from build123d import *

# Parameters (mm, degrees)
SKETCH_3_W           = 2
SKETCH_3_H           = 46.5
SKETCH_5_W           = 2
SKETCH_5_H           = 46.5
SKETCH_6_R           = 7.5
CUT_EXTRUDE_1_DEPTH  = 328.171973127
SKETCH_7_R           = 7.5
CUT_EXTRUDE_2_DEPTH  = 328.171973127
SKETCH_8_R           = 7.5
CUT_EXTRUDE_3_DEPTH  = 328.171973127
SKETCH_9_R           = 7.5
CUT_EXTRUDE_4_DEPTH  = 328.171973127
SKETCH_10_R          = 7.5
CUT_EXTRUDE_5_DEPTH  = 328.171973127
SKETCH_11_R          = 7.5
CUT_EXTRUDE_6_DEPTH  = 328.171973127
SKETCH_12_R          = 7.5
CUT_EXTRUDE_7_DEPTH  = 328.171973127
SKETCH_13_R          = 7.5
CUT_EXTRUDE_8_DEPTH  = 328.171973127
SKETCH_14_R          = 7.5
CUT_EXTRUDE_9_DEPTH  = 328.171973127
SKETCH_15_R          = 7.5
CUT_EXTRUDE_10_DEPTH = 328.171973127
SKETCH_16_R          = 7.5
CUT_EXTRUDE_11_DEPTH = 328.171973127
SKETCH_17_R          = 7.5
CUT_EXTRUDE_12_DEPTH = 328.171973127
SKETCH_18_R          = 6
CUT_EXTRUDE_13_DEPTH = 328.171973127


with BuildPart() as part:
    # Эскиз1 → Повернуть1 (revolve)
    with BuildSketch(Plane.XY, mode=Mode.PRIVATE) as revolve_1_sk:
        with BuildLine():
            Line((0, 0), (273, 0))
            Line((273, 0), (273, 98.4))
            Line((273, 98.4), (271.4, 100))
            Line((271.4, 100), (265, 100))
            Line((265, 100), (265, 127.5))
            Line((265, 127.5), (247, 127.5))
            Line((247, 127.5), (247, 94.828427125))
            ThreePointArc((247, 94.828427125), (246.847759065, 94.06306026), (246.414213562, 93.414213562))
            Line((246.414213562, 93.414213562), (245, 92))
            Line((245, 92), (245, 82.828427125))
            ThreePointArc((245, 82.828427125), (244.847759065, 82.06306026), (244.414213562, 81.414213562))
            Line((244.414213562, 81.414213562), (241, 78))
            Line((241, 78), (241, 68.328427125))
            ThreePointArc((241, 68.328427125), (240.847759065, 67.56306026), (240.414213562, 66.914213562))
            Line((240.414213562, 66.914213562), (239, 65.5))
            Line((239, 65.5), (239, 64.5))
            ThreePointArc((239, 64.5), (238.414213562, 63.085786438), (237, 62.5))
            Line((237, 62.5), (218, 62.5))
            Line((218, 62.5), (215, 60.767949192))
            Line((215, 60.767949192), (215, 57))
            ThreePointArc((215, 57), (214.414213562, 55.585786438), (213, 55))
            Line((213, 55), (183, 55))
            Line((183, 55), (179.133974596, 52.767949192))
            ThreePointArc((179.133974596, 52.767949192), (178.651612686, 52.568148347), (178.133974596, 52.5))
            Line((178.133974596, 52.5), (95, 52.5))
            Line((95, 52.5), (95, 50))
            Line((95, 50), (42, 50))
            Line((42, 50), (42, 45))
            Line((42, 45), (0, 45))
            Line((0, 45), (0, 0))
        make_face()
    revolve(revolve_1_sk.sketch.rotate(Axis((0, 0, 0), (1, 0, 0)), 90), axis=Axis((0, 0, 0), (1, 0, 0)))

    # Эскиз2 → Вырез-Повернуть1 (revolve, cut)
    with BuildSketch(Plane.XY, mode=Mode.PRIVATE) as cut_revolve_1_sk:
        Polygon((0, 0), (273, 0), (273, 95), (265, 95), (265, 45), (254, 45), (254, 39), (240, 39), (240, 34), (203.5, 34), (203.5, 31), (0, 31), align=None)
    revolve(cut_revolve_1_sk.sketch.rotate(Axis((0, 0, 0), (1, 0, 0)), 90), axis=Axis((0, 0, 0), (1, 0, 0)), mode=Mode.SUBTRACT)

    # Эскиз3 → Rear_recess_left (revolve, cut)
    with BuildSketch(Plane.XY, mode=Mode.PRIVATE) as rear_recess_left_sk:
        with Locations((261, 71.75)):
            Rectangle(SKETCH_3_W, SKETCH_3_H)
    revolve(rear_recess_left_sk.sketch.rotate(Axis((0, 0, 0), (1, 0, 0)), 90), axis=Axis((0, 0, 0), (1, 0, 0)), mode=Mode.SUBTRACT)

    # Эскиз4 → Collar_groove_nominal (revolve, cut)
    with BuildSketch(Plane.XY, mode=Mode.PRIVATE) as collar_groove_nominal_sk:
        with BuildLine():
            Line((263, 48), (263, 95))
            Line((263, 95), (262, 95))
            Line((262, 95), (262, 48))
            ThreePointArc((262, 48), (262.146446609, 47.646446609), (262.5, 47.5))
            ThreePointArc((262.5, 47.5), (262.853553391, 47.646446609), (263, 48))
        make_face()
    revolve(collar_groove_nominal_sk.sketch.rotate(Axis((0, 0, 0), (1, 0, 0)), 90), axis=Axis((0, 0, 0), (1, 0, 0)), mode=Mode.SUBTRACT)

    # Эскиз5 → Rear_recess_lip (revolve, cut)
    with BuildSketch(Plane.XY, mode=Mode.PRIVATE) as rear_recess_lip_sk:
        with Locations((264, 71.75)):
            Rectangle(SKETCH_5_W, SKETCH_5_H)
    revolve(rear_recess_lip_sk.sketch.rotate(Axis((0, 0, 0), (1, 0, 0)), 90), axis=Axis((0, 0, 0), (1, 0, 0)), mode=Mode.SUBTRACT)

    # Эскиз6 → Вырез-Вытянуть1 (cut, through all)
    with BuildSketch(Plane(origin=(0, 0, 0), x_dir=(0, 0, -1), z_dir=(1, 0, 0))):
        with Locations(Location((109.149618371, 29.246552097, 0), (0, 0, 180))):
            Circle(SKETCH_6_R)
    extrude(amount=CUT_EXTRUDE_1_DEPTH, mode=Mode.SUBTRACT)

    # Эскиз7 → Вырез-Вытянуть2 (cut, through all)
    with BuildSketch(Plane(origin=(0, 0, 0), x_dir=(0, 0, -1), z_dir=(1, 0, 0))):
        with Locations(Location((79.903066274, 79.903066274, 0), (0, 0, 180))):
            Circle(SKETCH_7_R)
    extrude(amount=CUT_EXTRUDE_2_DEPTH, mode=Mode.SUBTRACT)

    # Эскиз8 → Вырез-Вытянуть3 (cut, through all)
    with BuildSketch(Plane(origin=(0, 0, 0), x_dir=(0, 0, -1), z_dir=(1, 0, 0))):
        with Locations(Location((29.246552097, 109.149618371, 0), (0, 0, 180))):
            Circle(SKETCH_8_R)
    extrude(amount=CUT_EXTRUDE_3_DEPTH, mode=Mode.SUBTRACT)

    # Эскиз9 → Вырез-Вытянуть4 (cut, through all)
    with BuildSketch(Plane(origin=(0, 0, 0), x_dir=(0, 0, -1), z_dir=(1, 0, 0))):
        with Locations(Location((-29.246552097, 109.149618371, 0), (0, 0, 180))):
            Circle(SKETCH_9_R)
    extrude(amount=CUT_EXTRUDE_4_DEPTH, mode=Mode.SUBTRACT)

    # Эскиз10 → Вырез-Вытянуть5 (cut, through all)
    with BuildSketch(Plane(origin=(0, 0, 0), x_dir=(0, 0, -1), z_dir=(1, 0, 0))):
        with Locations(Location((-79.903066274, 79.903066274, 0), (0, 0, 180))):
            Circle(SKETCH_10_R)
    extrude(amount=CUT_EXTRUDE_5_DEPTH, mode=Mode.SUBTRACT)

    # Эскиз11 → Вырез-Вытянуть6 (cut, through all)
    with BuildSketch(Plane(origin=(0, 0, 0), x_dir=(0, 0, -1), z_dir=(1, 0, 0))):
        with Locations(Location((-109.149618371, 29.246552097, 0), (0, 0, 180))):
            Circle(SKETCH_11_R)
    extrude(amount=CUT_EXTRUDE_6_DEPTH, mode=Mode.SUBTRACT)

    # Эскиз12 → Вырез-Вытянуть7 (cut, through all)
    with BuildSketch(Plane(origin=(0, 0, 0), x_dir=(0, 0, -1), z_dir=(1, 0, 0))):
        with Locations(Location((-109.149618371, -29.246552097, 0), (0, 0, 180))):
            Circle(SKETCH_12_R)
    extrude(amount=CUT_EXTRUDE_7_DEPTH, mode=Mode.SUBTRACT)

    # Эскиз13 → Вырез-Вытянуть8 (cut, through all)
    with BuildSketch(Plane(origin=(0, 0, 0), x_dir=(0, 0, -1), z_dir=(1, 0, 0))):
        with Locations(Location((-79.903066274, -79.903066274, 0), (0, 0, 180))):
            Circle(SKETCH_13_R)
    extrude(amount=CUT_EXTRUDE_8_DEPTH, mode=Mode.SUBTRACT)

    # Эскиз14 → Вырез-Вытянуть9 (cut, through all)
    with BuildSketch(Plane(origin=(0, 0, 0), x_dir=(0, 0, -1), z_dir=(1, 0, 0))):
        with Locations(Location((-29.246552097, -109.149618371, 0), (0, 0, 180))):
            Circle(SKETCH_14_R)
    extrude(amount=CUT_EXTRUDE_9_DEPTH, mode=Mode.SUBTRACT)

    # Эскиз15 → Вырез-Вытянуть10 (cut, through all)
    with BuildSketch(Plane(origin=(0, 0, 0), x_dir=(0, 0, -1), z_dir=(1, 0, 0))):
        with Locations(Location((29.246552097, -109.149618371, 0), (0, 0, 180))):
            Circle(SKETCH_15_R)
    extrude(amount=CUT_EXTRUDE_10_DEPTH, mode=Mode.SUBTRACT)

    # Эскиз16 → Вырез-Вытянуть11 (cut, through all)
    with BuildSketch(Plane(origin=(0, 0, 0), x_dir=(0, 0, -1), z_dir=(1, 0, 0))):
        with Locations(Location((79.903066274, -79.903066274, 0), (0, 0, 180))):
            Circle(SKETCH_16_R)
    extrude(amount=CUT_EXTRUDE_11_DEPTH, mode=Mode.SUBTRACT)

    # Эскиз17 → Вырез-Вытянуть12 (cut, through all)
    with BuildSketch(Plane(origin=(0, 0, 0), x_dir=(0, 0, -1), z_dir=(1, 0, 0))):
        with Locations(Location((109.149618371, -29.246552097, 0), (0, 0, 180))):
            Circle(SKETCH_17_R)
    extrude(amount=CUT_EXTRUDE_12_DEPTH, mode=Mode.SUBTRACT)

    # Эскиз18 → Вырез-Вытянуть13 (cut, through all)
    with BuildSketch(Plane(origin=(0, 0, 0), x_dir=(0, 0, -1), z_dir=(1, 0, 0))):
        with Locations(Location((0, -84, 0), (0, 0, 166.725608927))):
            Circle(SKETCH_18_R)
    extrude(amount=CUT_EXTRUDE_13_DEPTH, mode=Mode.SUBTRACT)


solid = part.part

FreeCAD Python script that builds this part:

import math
import FreeCAD as App
import Part
import Sketcher
from FreeCAD import Vector
Q = App.Units.Quantity

doc = App.newDocument("Part")
body = doc.addObject("PartDesign::Body", "Body")

# Sketch on XY plane
sketch1 = body.newObject("Sketcher::SketchObject", "Sketch")
sketch1.AttachmentSupport = (doc.getObject("XY_Plane"), [""])
sketch1.MapMode = "FlatFace"
sketch1.addGeometry([
    Part.LineSegment(Vector(0, 0, 0), Vector(273, 0, 0)),  # 0
    Part.LineSegment(Vector(273, 0, 0), Vector(273, 98.4, 0)),  # 1
    Part.LineSegment(Vector(273, 98.4, 0), Vector(271.4, 100, 0)),  # 2
    Part.LineSegment(Vector(271.4, 100, 0), Vector(265, 100, 0)),  # 3
    Part.LineSegment(Vector(265, 100, 0), Vector(265, 127.5, 0)),  # 4
    Part.LineSegment(Vector(265, 127.5, 0), Vector(247, 127.5, 0)),  # 5
    Part.LineSegment(Vector(247, 127.5, 0), Vector(247, 94.828427, 0)),  # 6
    Part.ArcOfCircle(Part.Circle(Vector(245, 94.828427, 0), Vector(0, 0, 1), 2), math.radians(-45), math.radians(0)),  # 7
    Part.LineSegment(Vector(246.414214, 93.414214, 0), Vector(245, 92, 0)),  # 8
    Part.LineSegment(Vector(245, 92, 0), Vector(245, 82.828427, 0)),  # 9
    Part.ArcOfCircle(Part.Circle(Vector(243, 82.828427, 0), Vector(0, 0, 1), 2), math.radians(-45), math.radians(0)),  # 10
    Part.LineSegment(Vector(244.414214, 81.414214, 0), Vector(241, 78, 0)),  # 11
    Part.LineSegment(Vector(241, 78, 0), Vector(241, 68.328427, 0)),  # 12
    Part.ArcOfCircle(Part.Circle(Vector(239, 68.328427, 0), Vector(0, 0, 1), 2), math.radians(-45), math.radians(0)),  # 13
    Part.LineSegment(Vector(240.414214, 66.914214, 0), Vector(239, 65.5, 0)),  # 14
    Part.LineSegment(Vector(239, 65.5, 0), Vector(239, 64.5, 0)),  # 15
    Part.ArcOfCircle(Part.Circle(Vector(237, 64.5, 0), Vector(0, 0, 1), 2), math.radians(-90), math.radians(0)),  # 16
    Part.LineSegment(Vector(237, 62.5, 0), Vector(218, 62.5, 0)),  # 17
    Part.LineSegment(Vector(218, 62.5, 0), Vector(215, 60.767949, 0)),  # 18
    Part.LineSegment(Vector(215, 60.767949, 0), Vector(215, 57, 0)),  # 19
    Part.ArcOfCircle(Part.Circle(Vector(213, 57, 0), Vector(0, 0, 1), 2), math.radians(-90), math.radians(0)),  # 20
    Part.LineSegment(Vector(213, 55, 0), Vector(183, 55, 0)),  # 21
    Part.LineSegment(Vector(183, 55, 0), Vector(179.133975, 52.767949, 0)),  # 22
    Part.ArcOfCircle(Part.Circle(Vector(178.133975, 54.5, 0), Vector(0, 0, 1), 2), math.radians(-90), math.radians(-60)),  # 23
    Part.LineSegment(Vector(178.133975, 52.5, 0), Vector(95, 52.5, 0)),  # 24
    Part.LineSegment(Vector(95, 52.5, 0), Vector(95, 50, 0)),  # 25
    Part.LineSegment(Vector(95, 50, 0), Vector(42, 50, 0)),  # 26
    Part.LineSegment(Vector(42, 50, 0), Vector(42, 45, 0)),  # 27
    Part.LineSegment(Vector(42, 45, 0), Vector(0, 45, 0)),  # 28
    Part.LineSegment(Vector(0, 45, 0), Vector(0, 0, 0)),  # 29
], False)
sketch1.addConstraint([
    Sketcher.Constraint("Coincident", 0, 2, 1, 1),
    Sketcher.Constraint("Coincident", 1, 2, 2, 1),
    Sketcher.Constraint("Coincident", 2, 2, 3, 1),
    Sketcher.Constraint("Coincident", 3, 2, 4, 1),
    Sketcher.Constraint("Coincident", 4, 2, 5, 1),
    Sketcher.Constraint("Coincident", 5, 2, 6, 1),
    Sketcher.Constraint("Tangent", 6, 2, 7, 2),
    Sketcher.Constraint("Tangent", 7, 1, 8, 1),
    Sketcher.Constraint("Coincident", 8, 2, 9, 1),
    Sketcher.Constraint("Tangent", 9, 2, 10, 2),
    Sketcher.Constraint("Tangent", 10, 1, 11, 1),
    Sketcher.Constraint("Coincident", 11, 2, 12, 1),
    Sketcher.Constraint("Tangent", 12, 2, 13, 2),
    Sketcher.Constraint("Tangent", 13, 1, 14, 1),
    Sketcher.Constraint("Coincident", 14, 2, 15, 1),
    Sketcher.Constraint("Tangent", 15, 2, 16, 2),
    Sketcher.Constraint("Tangent", 16, 1, 17, 1),
    Sketcher.Constraint("Coincident", 17, 2, 18, 1),
    Sketcher.Constraint("Coincident", 18, 2, 19, 1),
    Sketcher.Constraint("Tangent", 19, 2, 20, 2),
    Sketcher.Constraint("Tangent", 20, 1, 21, 1),
    Sketcher.Constraint("Coincident", 21, 2, 22, 1),
    Sketcher.Constraint("Tangent", 22, 2, 23, 2),
    Sketcher.Constraint("Tangent", 23, 1, 24, 1),
    Sketcher.Constraint("Coincident", 24, 2, 25, 1),
    Sketcher.Constraint("Coincident", 25, 2, 26, 1),
    Sketcher.Constraint("Coincident", 26, 2, 27, 1),
    Sketcher.Constraint("Coincident", 27, 2, 28, 1),
    Sketcher.Constraint("Coincident", 28, 2, 29, 1),
    Sketcher.Constraint("Coincident", 29, 2, 0, 1),
    Sketcher.Constraint("Horizontal", 0),
    Sketcher.Constraint("Vertical", 1),
    Sketcher.Constraint("Horizontal", 3),
    Sketcher.Constraint("Vertical", 4),
    Sketcher.Constraint("Horizontal", 5),
    Sketcher.Constraint("Vertical", 6),
    Sketcher.Constraint("Vertical", 9),
    Sketcher.Constraint("Vertical", 12),
    Sketcher.Constraint("Vertical", 15),
    Sketcher.Constraint("Horizontal", 17),
    Sketcher.Constraint("Vertical", 19),
    Sketcher.Constraint("Horizontal", 21),
    Sketcher.Constraint("Horizontal", 24),
    Sketcher.Constraint("Vertical", 25),
    Sketcher.Constraint("Horizontal", 26),
    Sketcher.Constraint("Vertical", 27),
    Sketcher.Constraint("Horizontal", 28),
    Sketcher.Constraint("Vertical", 29),
    Sketcher.Constraint("Coincident", 29, 2, -1, 1),
    Sketcher.Constraint("Equal", 7, 10),
    Sketcher.Constraint("Equal", 10, 13),
    Sketcher.Constraint("Equal", 13, 16),
    Sketcher.Constraint("Equal", 16, 20),
    Sketcher.Constraint("Equal", 20, 23),
    Sketcher.Constraint("Perpendicular", 2, 8),
    Sketcher.Constraint("Parallel", 8, 11),
    Sketcher.Constraint("Parallel", 11, 14),
    Sketcher.Constraint("Parallel", 18, 22),
    Sketcher.Constraint("Vertical", 7, 3, 8, 2),
    Sketcher.Constraint("Vertical", 13, 3, 14, 2),
    Sketcher.Constraint("Radius", 7, Q("2 mm")),
    Sketcher.Constraint("DistanceX", 0, 1, 0, 2, Q("273 mm")),
    Sketcher.Constraint("DistanceX", 5, 2, 5, 1, Q("18 mm")),
    Sketcher.Constraint("DistanceX", 17, 2, 17, 1, Q("19 mm")),
    Sketcher.Constraint("DistanceX", 21, 2, 21, 1, Q("30 mm")),
    Sketcher.Constraint("DistanceX", 26, 2, 26, 1, Q("53 mm")),
    Sketcher.Constraint("DistanceX", 28, 2, 28, 1, Q("42 mm")),
    Sketcher.Constraint("DistanceY", 15, 2, 15, 1, Q("1 mm")),
    Sketcher.Constraint("DistanceY", 27, 2, 27, 1, Q("5 mm")),
    Sketcher.Constraint("DistanceY", 29, 2, 29, 1, Q("45 mm")),
    Sketcher.Constraint("Angle", 2, Q("135 deg")),
    Sketcher.Constraint("Angle", 18, Q("-150 deg")),
    Sketcher.Constraint("DistanceX", 3, 2, 3, 1, Q("6.4 mm")),
    Sketcher.Constraint("DistanceY", 1, 1, 1, 2, Q("98.4 mm")),
    Sketcher.Constraint("DistanceY", 4, 1, 4, 2, Q("27.5 mm")),
    Sketcher.Constraint("DistanceY", 25, 2, 25, 1, Q("2.5 mm")),
    Sketcher.Constraint("DistanceX", -1, 1, 7, 3, Q("245 mm")),
    Sketcher.Constraint("DistanceX", -1, 1, 13, 3, Q("239 mm")),
    Sketcher.Constraint("DistanceX", -1, 1, 20, 3, Q("213 mm")),
    Sketcher.Constraint("DistanceY", -1, 1, 20, 3, Q("57 mm")),
    Sketcher.Constraint("DistanceY", -1, 1, 8, 2, Q("92 mm")),
    Sketcher.Constraint("DistanceY", -1, 1, 11, 2, Q("78 mm")),
    Sketcher.Constraint("DistanceY", 23, 3, 16, 3, Q("10 mm")),
])
revolution = body.newObject("PartDesign::Revolution", "Revolution")
revolution.Profile = sketch1
revolution.ReferenceAxis = (sketch1, ["H_Axis"])
revolution.Angle = 360

# Sketch on XY plane
sketch2 = body.newObject("Sketcher::SketchObject", "Sketch001")
sketch2.AttachmentSupport = (doc.getObject("XY_Plane"), [""])
sketch2.MapMode = "FlatFace"
sketch2.addGeometry([
    Part.LineSegment(Vector(0, 0, 0), Vector(273, 0, 0)),  # 0
    Part.LineSegment(Vector(273, 0, 0), Vector(273, 95, 0)),  # 1
    Part.LineSegment(Vector(273, 95, 0), Vector(265, 95, 0)),  # 2
    Part.LineSegment(Vector(265, 95, 0), Vector(265, 45, 0)),  # 3
    Part.LineSegment(Vector(265, 45, 0), Vector(254, 45, 0)),  # 4
    Part.LineSegment(Vector(254, 45, 0), Vector(254, 39, 0)),  # 5
    Part.LineSegment(Vector(254, 39, 0), Vector(240, 39, 0)),  # 6
    Part.LineSegment(Vector(240, 39, 0), Vector(240, 34, 0)),  # 7
    Part.LineSegment(Vector(240, 34, 0), Vector(203.5, 34, 0)),  # 8
    Part.LineSegment(Vector(203.5, 34, 0), Vector(203.5, 31, 0)),  # 9
    Part.LineSegment(Vector(203.5, 31, 0), Vector(0, 31, 0)),  # 10
    Part.LineSegment(Vector(0, 31, 0), Vector(0, 0, 0)),  # 11
], False)
sketch2.addConstraint([
    Sketcher.Constraint("Coincident", 0, 2, 1, 1),
    Sketcher.Constraint("Coincident", 1, 2, 2, 1),
    Sketcher.Constraint("Coincident", 2, 2, 3, 1),
    Sketcher.Constraint("Coincident", 3, 2, 4, 1),
    Sketcher.Constraint("Coincident", 4, 2, 5, 1),
    Sketcher.Constraint("Coincident", 5, 2, 6, 1),
    Sketcher.Constraint("Coincident", 6, 2, 7, 1),
    Sketcher.Constraint("Coincident", 7, 2, 8, 1),
    Sketcher.Constraint("Coincident", 8, 2, 9, 1),
    Sketcher.Constraint("Coincident", 9, 2, 10, 1),
    Sketcher.Constraint("Coincident", 10, 2, 11, 1),
    Sketcher.Constraint("Coincident", 11, 2, 0, 1),
    Sketcher.Constraint("Horizontal", 0),
    Sketcher.Constraint("Vertical", 1),
    Sketcher.Constraint("Horizontal", 2),
    Sketcher.Constraint("Vertical", 3),
    Sketcher.Constraint("Horizontal", 4),
    Sketcher.Constraint("Vertical", 5),
    Sketcher.Constraint("Horizontal", 6),
    Sketcher.Constraint("Vertical", 7),
    Sketcher.Constraint("Horizontal", 8),
    Sketcher.Constraint("Vertical", 9),
    Sketcher.Constraint("Horizontal", 10),
    Sketcher.Constraint("Vertical", 11),
    Sketcher.Constraint("Coincident", 11, 2, -1, 1),
    Sketcher.Constraint("DistanceX", 0, 1, 0, 2, Q("273 mm")),
    Sketcher.Constraint("DistanceX", 2, 2, 2, 1, Q("8 mm")),
    Sketcher.Constraint("DistanceX", 4, 2, 4, 1, Q("11 mm")),
    Sketcher.Constraint("DistanceX", 6, 2, 6, 1, Q("14 mm")),
    Sketcher.Constraint("DistanceY", 1, 1, 1, 2, Q("95 mm")),
    Sketcher.Constraint("DistanceY", 3, 2, 3, 1, Q("50 mm")),
    Sketcher.Constraint("DistanceY", 5, 2, 5, 1, Q("6 mm")),
    Sketcher.Constraint("DistanceY", 7, 2, 7, 1, Q("5 mm")),
    Sketcher.Constraint("DistanceY", 9, 2, 9, 1, Q("3 mm")),
    Sketcher.Constraint("DistanceX", 8, 2, 8, 1, Q("36.5 mm")),
])
groove = body.newObject("PartDesign::Groove", "Groove")
groove.Profile = sketch2
groove.ReferenceAxis = (sketch2, ["H_Axis"])
groove.Angle = 360

# Sketch on XY plane
sketch3 = body.newObject("Sketcher::SketchObject", "Sketch002")
sketch3.AttachmentSupport = (doc.getObject("XY_Plane"), [""])
sketch3.MapMode = "FlatFace"
sketch3.addGeometry([
    Part.LineSegment(Vector(260, 95, 0), Vector(260, 48.5, 0)),
    Part.LineSegment(Vector(260, 48.5, 0), Vector(262, 48.5, 0)),
    Part.LineSegment(Vector(262, 48.5, 0), Vector(262, 95, 0)),
    Part.LineSegment(Vector(262, 95, 0), Vector(260, 95, 0)),
], False)
sketch3.addConstraint([
    Sketcher.Constraint("Coincident", 0, 2, 1, 1),
    Sketcher.Constraint("Coincident", 1, 2, 2, 1),
    Sketcher.Constraint("Coincident", 2, 2, 3, 1),
    Sketcher.Constraint("Coincident", 3, 2, 0, 1),
    Sketcher.Constraint("Vertical", 0),
    Sketcher.Constraint("Horizontal", 1),
    Sketcher.Constraint("Vertical", 2),
    Sketcher.Constraint("Horizontal", 3),
    Sketcher.Constraint("DistanceX", 1, 1, 1, 2, Q("2 mm")),
    Sketcher.Constraint("DistanceY", 0, 2, 0, 1, Q("46.5 mm")),
    Sketcher.Constraint("DistanceX", -1, 1, 0, 2, Q("260 mm")),
    Sketcher.Constraint("DistanceY", -1, 1, 2, 2, Q("95 mm")),
])
groove2 = body.newObject("PartDesign::Groove", "Groove001")
groove2.Profile = sketch3
groove2.ReferenceAxis = (sketch3, ["H_Axis"])
groove2.Angle = 360

# Sketch on XY plane
sketch4 = body.newObject("Sketcher::SketchObject", "Sketch003")
sketch4.AttachmentSupport = (doc.getObject("XY_Plane"), [""])
sketch4.MapMode = "FlatFace"
sketch4.addGeometry([
    Part.LineSegment(Vector(263, 48, 0), Vector(263, 95, 0)),  # 0
    Part.LineSegment(Vector(263, 95, 0), Vector(262, 95, 0)),  # 1
    Part.LineSegment(Vector(262, 95, 0), Vector(262, 48, 0)),  # 2
    Part.ArcOfCircle(Part.Circle(Vector(262.5, 48, 0), Vector(0, 0, 1), 0.5), math.radians(180), math.radians(270)),  # 3
    Part.ArcOfCircle(Part.Circle(Vector(262.5, 48, 0), Vector(0, 0, 1), 0.5), math.radians(-90), math.radians(0)),  # 4
], False)
sketch4.addConstraint([
    Sketcher.Constraint("Coincident", 0, 2, 1, 1),
    Sketcher.Constraint("Coincident", 1, 2, 2, 1),
    Sketcher.Constraint("Tangent", 2, 2, 3, 1),
    Sketcher.Constraint("Tangent", 3, 2, 4, 1),
    Sketcher.Constraint("Tangent", 4, 2, 0, 1),
    Sketcher.Constraint("Vertical", 0),
    Sketcher.Constraint("Horizontal", 1),
    Sketcher.Constraint("Vertical", 2),
    Sketcher.Constraint("Equal", 3, 4),
    Sketcher.Constraint("Vertical", 4, 3, 3, 2),
    Sketcher.Constraint("Radius", 3, Q("0.5 mm")),
    Sketcher.Constraint("DistanceY", 0, 1, 0, 2, Q("47 mm")),
    Sketcher.Constraint("DistanceY", -1, 1, 3, 3, Q("48 mm")),
    Sketcher.Constraint("DistanceX", -1, 1, 0, 2, Q("263 mm")),
])
groove3 = body.newObject("PartDesign::Groove", "Groove002")
groove3.Profile = sketch4
groove3.ReferenceAxis = (sketch4, ["H_Axis"])
groove3.Angle = 360

# Sketch on XY plane
sketch5 = body.newObject("Sketcher::SketchObject", "Sketch004")
sketch5.AttachmentSupport = (doc.getObject("XY_Plane"), [""])
sketch5.MapMode = "FlatFace"
sketch5.addGeometry([
    Part.LineSegment(Vector(263, 95, 0), Vector(263, 48.5, 0)),
    Part.LineSegment(Vector(263, 48.5, 0), Vector(265, 48.5, 0)),
    Part.LineSegment(Vector(265, 48.5, 0), Vector(265, 95, 0)),
    Part.LineSegment(Vector(265, 95, 0), Vector(263, 95, 0)),
], False)
sketch5.addConstraint([
    Sketcher.Constraint("Coincident", 0, 2, 1, 1),
    Sketcher.Constraint("Coincident", 1, 2, 2, 1),
    Sketcher.Constraint("Coincident", 2, 2, 3, 1),
    Sketcher.Constraint("Coincident", 3, 2, 0, 1),
    Sketcher.Constraint("Vertical", 0),
    Sketcher.Constraint("Horizontal", 1),
    Sketcher.Constraint("Vertical", 2),
    Sketcher.Constraint("Horizontal", 3),
    Sketcher.Constraint("DistanceX", 1, 1, 1, 2, Q("2 mm")),
    Sketcher.Constraint("DistanceY", 0, 2, 0, 1, Q("46.5 mm")),
    Sketcher.Constraint("DistanceX", -1, 1, 0, 2, Q("263 mm")),
    Sketcher.Constraint("DistanceY", -1, 1, 2, 2, Q("95 mm")),
])
groove4 = body.newObject("PartDesign::Groove", "Groove003")
groove4.Profile = sketch5
groove4.ReferenceAxis = (sketch5, ["H_Axis"])
groove4.Angle = 360

# Sketch on YZ plane
sketch6 = body.newObject("Sketcher::SketchObject", "Sketch005")
sketch6.AttachmentSupport = (doc.getObject("YZ_Plane"), [""])
sketch6.MapMode = "FlatFace"
sketch6.addGeometry(Part.Circle(Vector(29.246552, -109.149618, 0), Vector(0, 0, 1), 7.5), False)
sketch6.addConstraint([
    Sketcher.Constraint("Diameter", 0, Q("15 mm")),
    Sketcher.Constraint("DistanceY", 0, 3, -1, 1, Q("109.149618 mm")),
    Sketcher.Constraint("DistanceX", -1, 1, 0, 3, Q("29.246552 mm")),
])
pocket1 = body.newObject("PartDesign::Pocket", "Pocket")
pocket1.Profile = sketch6
pocket1.Type = "ThroughAll"
pocket1.Reversed = True

# Sketch on YZ plane
sketch7 = body.newObject("Sketcher::SketchObject", "Sketch006")
sketch7.AttachmentSupport = (doc.getObject("YZ_Plane"), [""])
sketch7.MapMode = "FlatFace"
sketch7.addGeometry(Part.Circle(Vector(79.903066, -79.903066, 0), Vector(0, 0, 1), 7.5), False)
sketch7.addConstraint([
    Sketcher.Constraint("Diameter", 0, Q("15 mm")),
    Sketcher.Constraint("DistanceX", -1, 1, 0, 3, Q("79.903066 mm")),
    Sketcher.Constraint("DistanceY", 0, 3, -1, 1, Q("79.903066 mm")),
])
pocket2 = body.newObject("PartDesign::Pocket", "Pocket001")
pocket2.Profile = sketch7
pocket2.Type = "ThroughAll"
pocket2.Reversed = True

# Sketch on YZ plane
sketch8 = body.newObject("Sketcher::SketchObject", "Sketch007")
sketch8.AttachmentSupport = (doc.getObject("YZ_Plane"), [""])
sketch8.MapMode = "FlatFace"
sketch8.addGeometry(Part.Circle(Vector(109.149618, -29.246552, 0), Vector(0, 0, 1), 7.5), False)
sketch8.addConstraint([
    Sketcher.Constraint("Diameter", 0, Q("15 mm")),
    Sketcher.Constraint("DistanceX", -1, 1, 0, 3, Q("109.149618 mm")),
    Sketcher.Constraint("DistanceY", 0, 3, -1, 1, Q("29.246552 mm")),
])
pocket3 = body.newObject("PartDesign::Pocket", "Pocket002")
pocket3.Profile = sketch8
pocket3.Type = "ThroughAll"
pocket3.Reversed = True

# Sketch on YZ plane
sketch9 = body.newObject("Sketcher::SketchObject", "Sketch008")
sketch9.AttachmentSupport = (doc.getObject("YZ_Plane"), [""])
sketch9.MapMode = "FlatFace"
sketch9.addGeometry(Part.Circle(Vector(109.149618, 29.246552, 0), Vector(0, 0, 1), 7.5), False)
sketch9.addConstraint([
    Sketcher.Constraint("Diameter", 0, Q("15 mm")),
    Sketcher.Constraint("DistanceX", -1, 1, 0, 3, Q("109.149618 mm")),
    Sketcher.Constraint("DistanceY", -1, 1, 0, 3, Q("29.246552 mm")),
])
pocket4 = body.newObject("PartDesign::Pocket", "Pocket003")
pocket4.Profile = sketch9
pocket4.Type = "ThroughAll"
pocket4.Reversed = True

# Sketch on YZ plane
sketch10 = body.newObject("Sketcher::SketchObject", "Sketch009")
sketch10.AttachmentSupport = (doc.getObject("YZ_Plane"), [""])
sketch10.MapMode = "FlatFace"
sketch10.addGeometry(Part.Circle(Vector(79.903066, 79.903066, 0), Vector(0, 0, 1), 7.5), False)
sketch10.addConstraint([
    Sketcher.Constraint("Diameter", 0, Q("15 mm")),
    Sketcher.Constraint("DistanceX", -1, 1, 0, 3, Q("79.903066 mm")),
    Sketcher.Constraint("DistanceY", -1, 1, 0, 3, Q("79.903066 mm")),
])
pocket5 = body.newObject("PartDesign::Pocket", "Pocket004")
pocket5.Profile = sketch10
pocket5.Type = "ThroughAll"
pocket5.Reversed = True

# Sketch on YZ plane
sketch11 = body.newObject("Sketcher::SketchObject", "Sketch010")
sketch11.AttachmentSupport = (doc.getObject("YZ_Plane"), [""])
sketch11.MapMode = "FlatFace"
sketch11.addGeometry(Part.Circle(Vector(29.246552, 109.149618, 0), Vector(0, 0, 1), 7.5), False)
sketch11.addConstraint([
    Sketcher.Constraint("Diameter", 0, Q("15 mm")),
    Sketcher.Constraint("DistanceY", -1, 1, 0, 3, Q("109.149618 mm")),
    Sketcher.Constraint("DistanceX", -1, 1, 0, 3, Q("29.246552 mm")),
])
pocket6 = body.newObject("PartDesign::Pocket", "Pocket005")
pocket6.Profile = sketch11
pocket6.Type = "ThroughAll"
pocket6.Reversed = True

# Sketch on YZ plane
sketch12 = body.newObject("Sketcher::SketchObject", "Sketch011")
sketch12.AttachmentSupport = (doc.getObject("YZ_Plane"), [""])
sketch12.MapMode = "FlatFace"
sketch12.addGeometry(Part.Circle(Vector(-29.246552, 109.149618, 0), Vector(0, 0, 1), 7.5), False)
sketch12.addConstraint([
    Sketcher.Constraint("Diameter", 0, Q("15 mm")),
    Sketcher.Constraint("DistanceY", -1, 1, 0, 3, Q("109.149618 mm")),
    Sketcher.Constraint("DistanceX", 0, 3, -1, 1, Q("29.246552 mm")),
])
pocket7 = body.newObject("PartDesign::Pocket", "Pocket006")
pocket7.Profile = sketch12
pocket7.Type = "ThroughAll"
pocket7.Reversed = True

# Sketch on YZ plane
sketch13 = body.newObject("Sketcher::SketchObject", "Sketch012")
sketch13.AttachmentSupport = (doc.getObject("YZ_Plane"), [""])
sketch13.MapMode = "FlatFace"
sketch13.addGeometry(Part.Circle(Vector(-79.903066, 79.903066, 0), Vector(0, 0, 1), 7.5), False)
sketch13.addConstraint([
    Sketcher.Constraint("Diameter", 0, Q("15 mm")),
    Sketcher.Constraint("DistanceX", 0, 3, -1, 1, Q("79.903066 mm")),
    Sketcher.Constraint("DistanceY", -1, 1, 0, 3, Q("79.903066 mm")),
])
pocket8 = body.newObject("PartDesign::Pocket", "Pocket007")
pocket8.Profile = sketch13
pocket8.Type = "ThroughAll"
pocket8.Reversed = True

# Sketch on YZ plane
sketch14 = body.newObject("Sketcher::SketchObject", "Sketch013")
sketch14.AttachmentSupport = (doc.getObject("YZ_Plane"), [""])
sketch14.MapMode = "FlatFace"
sketch14.addGeometry(Part.Circle(Vector(-109.149618, 29.246552, 0), Vector(0, 0, 1), 7.5), False)
sketch14.addConstraint([
    Sketcher.Constraint("Diameter", 0, Q("15 mm")),
    Sketcher.Constraint("DistanceX", 0, 3, -1, 1, Q("109.149618 mm")),
    Sketcher.Constraint("DistanceY", -1, 1, 0, 3, Q("29.246552 mm")),
])
pocket9 = body.newObject("PartDesign::Pocket", "Pocket008")
pocket9.Profile = sketch14
pocket9.Type = "ThroughAll"
pocket9.Reversed = True

# Sketch on YZ plane
sketch15 = body.newObject("Sketcher::SketchObject", "Sketch014")
sketch15.AttachmentSupport = (doc.getObject("YZ_Plane"), [""])
sketch15.MapMode = "FlatFace"
sketch15.addGeometry(Part.Circle(Vector(-109.149618, -29.246552, 0), Vector(0, 0, 1), 7.5), False)
sketch15.addConstraint([
    Sketcher.Constraint("Diameter", 0, Q("15 mm")),
    Sketcher.Constraint("DistanceX", 0, 3, -1, 1, Q("109.149618 mm")),
    Sketcher.Constraint("DistanceY", 0, 3, -1, 1, Q("29.246552 mm")),
])
pocket10 = body.newObject("PartDesign::Pocket", "Pocket009")
pocket10.Profile = sketch15
pocket10.Type = "ThroughAll"
pocket10.Reversed = True

# Sketch on YZ plane
sketch16 = body.newObject("Sketcher::SketchObject", "Sketch015")
sketch16.AttachmentSupport = (doc.getObject("YZ_Plane"), [""])
sketch16.MapMode = "FlatFace"
sketch16.addGeometry(Part.Circle(Vector(-79.903066, -79.903066, 0), Vector(0, 0, 1), 7.5), False)
sketch16.addConstraint([
    Sketcher.Constraint("Diameter", 0, Q("15 mm")),
    Sketcher.Constraint("DistanceX", 0, 3, -1, 1, Q("79.903066 mm")),
    Sketcher.Constraint("DistanceY", 0, 3, -1, 1, Q("79.903066 mm")),
])
pocket11 = body.newObject("PartDesign::Pocket", "Pocket010")
pocket11.Profile = sketch16
pocket11.Type = "ThroughAll"
pocket11.Reversed = True

# Sketch on YZ plane
sketch17 = body.newObject("Sketcher::SketchObject", "Sketch016")
sketch17.AttachmentSupport = (doc.getObject("YZ_Plane"), [""])
sketch17.MapMode = "FlatFace"
sketch17.addGeometry(Part.Circle(Vector(-29.246552, -109.149618, 0), Vector(0, 0, 1), 7.5), False)
sketch17.addConstraint([
    Sketcher.Constraint("Diameter", 0, Q("15 mm")),
    Sketcher.Constraint("DistanceY", 0, 3, -1, 1, Q("109.149618 mm")),
    Sketcher.Constraint("DistanceX", 0, 3, -1, 1, Q("29.246552 mm")),
])
pocket12 = body.newObject("PartDesign::Pocket", "Pocket011")
pocket12.Profile = sketch17
pocket12.Type = "ThroughAll"
pocket12.Reversed = True

# Sketch on YZ plane
sketch18 = body.newObject("Sketcher::SketchObject", "Sketch017")
sketch18.AttachmentSupport = (doc.getObject("YZ_Plane"), [""])
sketch18.MapMode = "FlatFace"
sketch18.addGeometry(Part.Circle(Vector(-84, 0, 0), Vector(0, 0, 1), 6), False)
sketch18.addConstraint([
    Sketcher.Constraint("PointOnObject", 0, 3, -1),
    Sketcher.Constraint("Diameter", 0, Q("12 mm")),
    Sketcher.Constraint("DistanceX", 0, 3, -1, 1, Q("84 mm")),
])
pocket13 = body.newObject("PartDesign::Pocket", "Pocket012")
pocket13.Profile = sketch18
pocket13.Type = "ThroughAll"
pocket13.Reversed = True

doc.recompute()
